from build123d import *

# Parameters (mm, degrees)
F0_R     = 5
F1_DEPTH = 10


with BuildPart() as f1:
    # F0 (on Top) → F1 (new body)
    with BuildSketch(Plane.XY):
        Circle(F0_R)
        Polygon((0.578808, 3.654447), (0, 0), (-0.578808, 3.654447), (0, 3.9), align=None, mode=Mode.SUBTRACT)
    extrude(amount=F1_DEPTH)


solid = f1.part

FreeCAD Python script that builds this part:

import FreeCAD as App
import Part
import Sketcher
Q = App.Units.Quantity

doc = App.newDocument("Part")
body = doc.addObject("PartDesign::Body", "Body")

sketch1 = body.newObject("Sketcher::SketchObject", "Sketch")
sketch1.AttachmentSupport = (doc.getObject("XY_Plane"), [""])
sketch1.MapMode = "FlatFace"
sketch1.addGeometry([
    Part.Circle(App.Vector(0, 0, 0), App.Vector(0, 0, 1), 5),
    Part.LineSegment(App.Vector(0, 3.9, 0), App.Vector(0.578808, 3.654447, 0)),
    Part.LineSegment(App.Vector(0.578808, 3.654447, 0), App.Vector(0, 0, 0)),
    Part.LineSegment(App.Vector(0, 0, 0), App.Vector(-0.578808, 3.654447, 0)),
    Part.LineSegment(App.Vector(-0.578808, 3.654447, 0), App.Vector(0, 3.9, 0)),
], False)
sketch1.addConstraint([
    Sketcher.Constraint("Coincident", 1, 2, 2, 1),
    Sketcher.Constraint("Coincident", 2, 2, 3, 1),
    Sketcher.Constraint("Coincident", 3, 2, 4, 1),
    Sketcher.Constraint("Coincident", 4, 2, 1, 1),
    Sketcher.Constraint("Coincident", 0, 3, -1, 1),
    Sketcher.Constraint("Coincident", 2, 2, -1, 1),
    Sketcher.Constraint("Symmetric", 1, 2, 3, 2, -2),
    Sketcher.Constraint("PointOnObject", 4, 2, -2),
    Sketcher.Constraint("Diameter", 0, Q("10 mm")),
    Sketcher.Constraint("Angle", 2, Q("-99.000007 deg")),
    Sketcher.Constraint("Distance", 2, Q("3.7 mm")),
    Sketcher.Constraint("DistanceY", -1, 1, 4, 2, Q("3.9 mm")),
])
pad1 = body.newObject("PartDesign::Pad", "Pad")
pad1.Profile = sketch1
pad1.Length = 10

doc.recompute()
